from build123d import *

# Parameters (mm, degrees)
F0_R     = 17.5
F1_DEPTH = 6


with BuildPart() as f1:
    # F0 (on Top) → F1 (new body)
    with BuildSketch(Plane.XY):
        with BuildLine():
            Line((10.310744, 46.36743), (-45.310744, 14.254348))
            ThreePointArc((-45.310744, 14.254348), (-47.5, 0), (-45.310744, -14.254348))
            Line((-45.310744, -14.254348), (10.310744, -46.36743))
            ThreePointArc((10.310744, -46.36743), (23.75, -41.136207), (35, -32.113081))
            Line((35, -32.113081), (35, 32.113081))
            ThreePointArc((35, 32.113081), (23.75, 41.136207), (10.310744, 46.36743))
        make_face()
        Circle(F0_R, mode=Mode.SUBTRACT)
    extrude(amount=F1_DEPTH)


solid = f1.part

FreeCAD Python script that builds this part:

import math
import FreeCAD as App
import Part
import Sketcher
Q = App.Units.Quantity

doc = App.newDocument("Part")
body = doc.addObject("PartDesign::Body", "Body")

sketch1 = body.newObject("Sketcher::SketchObject", "Sketch")
sketch1.AttachmentSupport = (doc.getObject("XY_Plane"), [""])
sketch1.MapMode = "FlatFace"
sketch1.addGeometry(Part.LineSegment(App.Vector(10.310744, 46.36743, 0), App.Vector(-45.310744, 14.254348, 0)), False)
sketch1.addGeometry(Part.ArcOfCircle(Part.Circle(App.Vector(-0.000009, 0, 0), App.Vector(0, 0, 1), 47.499991), math.radians(162.536895), math.radians(197.463105)), False)
sketch1.addGeometry(Part.LineSegment(App.Vector(-45.310744, -14.254348, 0), App.Vector(10.310744, -46.36743, 0)), False)
sketch1.addGeometry(Part.ArcOfCircle(Part.Circle(App.Vector(0.000004, -0.000008, 0), App.Vector(0, 0, 1), 47.499992), math.radians(-77.463104), math.radians(-42.536894)), False)
sketch1.addGeometry(Part.LineSegment(App.Vector(35, -32.113081, 0), App.Vector(35, 32.113081, 0)), False)
sketch1.addGeometry(Part.ArcOfCircle(Part.Circle(App.Vector(0.000004, 0.000008, 0), App.Vector(0, 0, 1), 47.499992), math.radians(42.536894), math.radians(77.463104)), False)
sketch1.addGeometry(Part.Circle(App.Vector(0, 0, 0), App.Vector(0, 0, 1), 17.5), False)
sketch1.addConstraint(Sketcher.Constraint("Coincident", 0, 2, 1, 1))
sketch1.addConstraint(Sketcher.Constraint("Coincident", 1, 2, 2, 1))
sketch1.addConstraint(Sketcher.Constraint("Coincident", 2, 2, 3, 1))
sketch1.addConstraint(Sketcher.Constraint("Coincident", 3, 2, 4, 1))
sketch1.addConstraint(Sketcher.Constraint("Coincident", 4, 2, 5, 1))
sketch1.addConstraint(Sketcher.Constraint("Coincident", 5, 2, 0, 1))
sketch1.addConstraint(Sketcher.Constraint("Vertical", 4))
sketch1.addConstraint(Sketcher.Constraint("Coincident", 1, 3, -1, 1))
sketch1.addConstraint(Sketcher.Constraint("Coincident", 3, 3, -1, 1))
sketch1.addConstraint(Sketcher.Constraint("Coincident", 5, 3, -1, 1))
sketch1.addConstraint(Sketcher.Constraint("Coincident", 6, 3, -1, 1))
sketch1.addConstraint(Sketcher.Constraint("Diameter", 6, Q("35 mm")))
sketch1.addConstraint(Sketcher.Constraint("DistanceX", -1, 1, 3, 2, Q("35 mm")))
sketch1.addConstraint(Sketcher.Constraint("Radius", 1, Q("47.499991 mm")))
sketch1.addConstraint(Sketcher.Constraint("Radius", 3, Q("47.499992 mm")))
sketch1.addConstraint(Sketcher.Constraint("Radius", 5, Q("47.499992 mm")))
sketch1.addConstraint(Sketcher.Constraint("DistanceY", 2, 2, -1, 1, Q("46.36743 mm")))
sketch1.addConstraint(Sketcher.Constraint("DistanceY", -1, 1, 5, 2, Q("46.36743 mm")))
sketch1.addConstraint(Sketcher.Constraint("DistanceY", 5, 3, 0, 2, Q("14.25434 mm")))
sketch1.addConstraint(Sketcher.Constraint("DistanceY", 1, 2, 3, 3, Q("14.25434 mm")))
pad1 = body.newObject("PartDesign::Pad", "Pad")
pad1.Profile = sketch1
pad1.Length = 6

doc.recompute()
